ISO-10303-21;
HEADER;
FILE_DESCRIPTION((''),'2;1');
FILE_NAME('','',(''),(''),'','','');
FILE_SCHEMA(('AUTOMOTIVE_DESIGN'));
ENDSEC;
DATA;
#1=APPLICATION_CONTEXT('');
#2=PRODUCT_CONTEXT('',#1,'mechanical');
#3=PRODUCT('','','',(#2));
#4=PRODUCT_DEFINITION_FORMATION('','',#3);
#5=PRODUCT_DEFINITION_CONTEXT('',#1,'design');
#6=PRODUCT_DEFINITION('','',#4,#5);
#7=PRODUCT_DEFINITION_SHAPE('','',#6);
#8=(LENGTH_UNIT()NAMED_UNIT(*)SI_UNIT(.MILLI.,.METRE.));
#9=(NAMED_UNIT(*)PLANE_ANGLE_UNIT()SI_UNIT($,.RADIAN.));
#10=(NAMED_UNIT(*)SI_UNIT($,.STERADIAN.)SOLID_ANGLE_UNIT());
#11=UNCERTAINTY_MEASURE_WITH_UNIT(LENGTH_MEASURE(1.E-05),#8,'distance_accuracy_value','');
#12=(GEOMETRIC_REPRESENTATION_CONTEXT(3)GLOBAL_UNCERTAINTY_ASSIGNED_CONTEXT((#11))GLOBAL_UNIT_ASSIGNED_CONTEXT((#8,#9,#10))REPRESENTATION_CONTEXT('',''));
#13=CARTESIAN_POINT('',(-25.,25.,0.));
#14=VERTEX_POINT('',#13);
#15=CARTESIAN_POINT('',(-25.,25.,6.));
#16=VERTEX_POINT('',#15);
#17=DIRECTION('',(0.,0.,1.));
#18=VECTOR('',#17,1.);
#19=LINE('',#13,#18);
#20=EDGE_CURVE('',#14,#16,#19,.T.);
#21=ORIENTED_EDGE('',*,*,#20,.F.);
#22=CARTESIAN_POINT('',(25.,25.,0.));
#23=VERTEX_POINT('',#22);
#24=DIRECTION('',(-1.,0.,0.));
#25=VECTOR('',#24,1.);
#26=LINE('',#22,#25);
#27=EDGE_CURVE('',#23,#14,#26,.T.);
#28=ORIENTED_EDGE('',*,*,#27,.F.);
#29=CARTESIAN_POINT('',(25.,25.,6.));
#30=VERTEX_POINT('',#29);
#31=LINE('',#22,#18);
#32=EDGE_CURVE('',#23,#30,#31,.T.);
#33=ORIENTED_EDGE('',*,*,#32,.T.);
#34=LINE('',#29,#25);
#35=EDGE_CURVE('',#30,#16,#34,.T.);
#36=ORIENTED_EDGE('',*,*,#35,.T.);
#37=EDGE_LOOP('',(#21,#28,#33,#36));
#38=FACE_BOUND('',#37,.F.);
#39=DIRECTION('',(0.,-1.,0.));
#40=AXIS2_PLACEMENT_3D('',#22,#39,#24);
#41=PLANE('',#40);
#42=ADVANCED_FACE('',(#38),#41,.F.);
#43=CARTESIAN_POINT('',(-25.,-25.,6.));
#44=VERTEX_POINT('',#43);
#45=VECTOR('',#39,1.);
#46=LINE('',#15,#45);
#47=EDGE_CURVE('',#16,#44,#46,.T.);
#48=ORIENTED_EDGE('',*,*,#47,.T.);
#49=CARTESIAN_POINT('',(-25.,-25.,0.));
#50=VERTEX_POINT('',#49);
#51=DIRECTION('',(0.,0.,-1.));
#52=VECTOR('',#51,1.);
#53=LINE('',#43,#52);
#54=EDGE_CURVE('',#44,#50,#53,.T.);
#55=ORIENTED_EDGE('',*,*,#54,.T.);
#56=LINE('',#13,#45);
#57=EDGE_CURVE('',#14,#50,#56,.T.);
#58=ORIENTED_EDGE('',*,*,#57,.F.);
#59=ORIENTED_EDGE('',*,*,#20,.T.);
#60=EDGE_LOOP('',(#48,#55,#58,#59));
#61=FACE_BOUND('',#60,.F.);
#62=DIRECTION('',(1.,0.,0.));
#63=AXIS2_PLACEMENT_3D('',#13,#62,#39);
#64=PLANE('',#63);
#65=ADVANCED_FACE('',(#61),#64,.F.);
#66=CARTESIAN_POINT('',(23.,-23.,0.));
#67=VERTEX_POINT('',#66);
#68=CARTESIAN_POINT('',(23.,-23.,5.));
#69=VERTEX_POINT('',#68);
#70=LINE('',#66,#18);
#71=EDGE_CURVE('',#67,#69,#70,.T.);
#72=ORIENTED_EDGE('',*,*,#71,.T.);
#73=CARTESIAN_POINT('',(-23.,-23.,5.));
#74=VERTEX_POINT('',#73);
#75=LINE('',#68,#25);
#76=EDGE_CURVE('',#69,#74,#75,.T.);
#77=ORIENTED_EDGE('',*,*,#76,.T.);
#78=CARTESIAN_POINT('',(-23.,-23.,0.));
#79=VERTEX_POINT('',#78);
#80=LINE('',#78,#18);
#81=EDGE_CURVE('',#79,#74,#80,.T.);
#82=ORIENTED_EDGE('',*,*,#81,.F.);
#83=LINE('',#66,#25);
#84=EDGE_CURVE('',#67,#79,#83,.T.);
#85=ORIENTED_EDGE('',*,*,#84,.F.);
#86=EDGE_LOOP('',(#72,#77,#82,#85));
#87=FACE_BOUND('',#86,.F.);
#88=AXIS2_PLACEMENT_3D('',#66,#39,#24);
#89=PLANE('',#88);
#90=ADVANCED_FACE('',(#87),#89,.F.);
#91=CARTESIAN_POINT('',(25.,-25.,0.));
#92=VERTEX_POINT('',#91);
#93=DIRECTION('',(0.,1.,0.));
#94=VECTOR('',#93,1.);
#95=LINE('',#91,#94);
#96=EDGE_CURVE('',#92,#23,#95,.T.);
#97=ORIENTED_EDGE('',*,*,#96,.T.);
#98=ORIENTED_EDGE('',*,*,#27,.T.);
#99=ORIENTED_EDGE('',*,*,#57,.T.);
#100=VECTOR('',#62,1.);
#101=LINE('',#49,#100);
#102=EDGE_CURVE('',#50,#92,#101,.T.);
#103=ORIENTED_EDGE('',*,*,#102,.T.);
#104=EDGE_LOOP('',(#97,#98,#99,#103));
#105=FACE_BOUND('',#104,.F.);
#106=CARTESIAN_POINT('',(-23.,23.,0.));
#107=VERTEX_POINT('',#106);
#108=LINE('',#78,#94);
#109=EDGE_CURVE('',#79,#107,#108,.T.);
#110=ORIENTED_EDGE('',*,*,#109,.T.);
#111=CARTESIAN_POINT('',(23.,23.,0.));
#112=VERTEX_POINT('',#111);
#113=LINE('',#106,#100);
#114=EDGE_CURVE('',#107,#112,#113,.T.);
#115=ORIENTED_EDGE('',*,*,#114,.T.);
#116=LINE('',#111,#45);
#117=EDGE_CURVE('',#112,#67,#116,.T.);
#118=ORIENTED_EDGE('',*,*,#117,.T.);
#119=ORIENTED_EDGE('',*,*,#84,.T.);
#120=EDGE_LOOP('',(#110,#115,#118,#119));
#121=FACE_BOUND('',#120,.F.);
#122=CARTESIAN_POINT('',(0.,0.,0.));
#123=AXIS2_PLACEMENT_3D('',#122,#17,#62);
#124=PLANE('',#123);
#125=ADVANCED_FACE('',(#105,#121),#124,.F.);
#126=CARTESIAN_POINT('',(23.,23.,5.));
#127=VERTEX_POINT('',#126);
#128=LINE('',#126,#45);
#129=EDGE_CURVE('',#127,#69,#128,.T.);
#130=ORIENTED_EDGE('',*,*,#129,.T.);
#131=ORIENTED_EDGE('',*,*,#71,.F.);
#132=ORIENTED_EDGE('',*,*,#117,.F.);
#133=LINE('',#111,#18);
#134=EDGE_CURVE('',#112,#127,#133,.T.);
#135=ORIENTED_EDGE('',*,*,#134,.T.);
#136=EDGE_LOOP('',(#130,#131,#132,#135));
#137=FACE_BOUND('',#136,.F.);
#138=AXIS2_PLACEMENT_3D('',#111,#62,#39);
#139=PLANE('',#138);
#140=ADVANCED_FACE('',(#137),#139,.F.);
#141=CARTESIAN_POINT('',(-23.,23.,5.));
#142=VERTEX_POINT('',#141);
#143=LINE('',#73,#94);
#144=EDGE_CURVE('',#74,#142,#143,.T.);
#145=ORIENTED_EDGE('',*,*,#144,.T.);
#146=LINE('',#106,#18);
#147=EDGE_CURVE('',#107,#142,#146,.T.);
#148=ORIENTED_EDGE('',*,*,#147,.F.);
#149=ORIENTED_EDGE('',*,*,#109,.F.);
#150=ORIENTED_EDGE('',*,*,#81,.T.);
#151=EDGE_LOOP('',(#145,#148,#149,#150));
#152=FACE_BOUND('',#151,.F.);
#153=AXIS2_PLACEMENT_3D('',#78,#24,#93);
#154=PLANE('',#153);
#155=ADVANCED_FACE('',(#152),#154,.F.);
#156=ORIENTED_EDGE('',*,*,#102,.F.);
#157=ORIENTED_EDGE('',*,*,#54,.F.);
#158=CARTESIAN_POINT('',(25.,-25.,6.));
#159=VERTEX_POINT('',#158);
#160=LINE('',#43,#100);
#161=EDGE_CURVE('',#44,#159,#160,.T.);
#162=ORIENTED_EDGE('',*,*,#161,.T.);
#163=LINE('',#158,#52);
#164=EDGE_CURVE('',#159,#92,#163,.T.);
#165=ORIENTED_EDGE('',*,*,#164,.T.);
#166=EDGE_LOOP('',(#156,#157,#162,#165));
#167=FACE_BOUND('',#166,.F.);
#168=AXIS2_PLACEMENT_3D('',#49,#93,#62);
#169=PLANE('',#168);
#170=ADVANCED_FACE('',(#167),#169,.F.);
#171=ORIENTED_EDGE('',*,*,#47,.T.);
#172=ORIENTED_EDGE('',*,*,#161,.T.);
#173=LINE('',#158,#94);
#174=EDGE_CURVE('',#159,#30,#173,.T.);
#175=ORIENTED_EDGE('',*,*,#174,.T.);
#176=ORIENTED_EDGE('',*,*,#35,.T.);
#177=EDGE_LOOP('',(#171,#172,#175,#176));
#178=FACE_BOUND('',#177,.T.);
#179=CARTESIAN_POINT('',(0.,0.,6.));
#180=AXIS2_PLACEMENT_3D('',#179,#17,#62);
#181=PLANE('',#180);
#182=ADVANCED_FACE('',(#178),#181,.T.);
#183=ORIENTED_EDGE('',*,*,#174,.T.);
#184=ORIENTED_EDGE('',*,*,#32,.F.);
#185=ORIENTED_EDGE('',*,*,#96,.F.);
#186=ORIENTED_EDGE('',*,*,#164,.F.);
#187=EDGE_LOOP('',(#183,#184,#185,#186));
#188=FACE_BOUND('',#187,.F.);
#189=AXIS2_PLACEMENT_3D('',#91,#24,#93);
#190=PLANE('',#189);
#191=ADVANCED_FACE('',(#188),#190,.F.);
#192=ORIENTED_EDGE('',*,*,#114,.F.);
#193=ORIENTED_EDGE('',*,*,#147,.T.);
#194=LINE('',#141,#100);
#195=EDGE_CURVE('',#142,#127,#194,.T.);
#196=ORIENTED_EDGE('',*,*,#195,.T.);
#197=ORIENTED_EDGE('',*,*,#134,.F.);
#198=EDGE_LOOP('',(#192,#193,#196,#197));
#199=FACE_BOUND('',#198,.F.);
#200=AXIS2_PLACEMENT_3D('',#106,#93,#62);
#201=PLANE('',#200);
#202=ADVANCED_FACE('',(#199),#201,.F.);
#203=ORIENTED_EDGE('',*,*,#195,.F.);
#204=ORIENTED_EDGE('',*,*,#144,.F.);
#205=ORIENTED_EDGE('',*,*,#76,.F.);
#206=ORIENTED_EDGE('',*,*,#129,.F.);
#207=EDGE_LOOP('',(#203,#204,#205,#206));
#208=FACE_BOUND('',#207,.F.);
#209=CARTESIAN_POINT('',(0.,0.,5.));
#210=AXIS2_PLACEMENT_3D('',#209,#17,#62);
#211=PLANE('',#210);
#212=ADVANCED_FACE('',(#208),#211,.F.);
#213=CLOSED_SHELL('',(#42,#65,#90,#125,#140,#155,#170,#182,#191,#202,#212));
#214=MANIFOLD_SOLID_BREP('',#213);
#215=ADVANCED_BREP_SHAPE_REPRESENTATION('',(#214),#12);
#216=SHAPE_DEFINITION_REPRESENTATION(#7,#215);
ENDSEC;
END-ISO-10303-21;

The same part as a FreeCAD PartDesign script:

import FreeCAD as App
import Part
import Sketcher
Q = App.Units.Quantity

doc = App.newDocument("Part")
body = doc.addObject("PartDesign::Body", "Body")

sketch1 = body.newObject("Sketcher::SketchObject", "Sketch")
sketch1.AttachmentSupport = (doc.getObject("XY_Plane"), [""])
sketch1.MapMode = "FlatFace"
sketch1.addGeometry([
    Part.LineSegment(App.Vector(25, -25, 0), App.Vector(25, 25, 0)),
    Part.LineSegment(App.Vector(25, 25, 0), App.Vector(-25, 25, 0)),
    Part.LineSegment(App.Vector(-25, 25, 0), App.Vector(-25, -25, 0)),
    Part.LineSegment(App.Vector(-25, -25, 0), App.Vector(25, -25, 0)),
    Part.LineSegment(App.Vector(-23, -23, 0), App.Vector(-23, 23, 0)),
    Part.LineSegment(App.Vector(-23, 23, 0), App.Vector(23, 23, 0)),
    Part.LineSegment(App.Vector(23, 23, 0), App.Vector(23, -23, 0)),
    Part.LineSegment(App.Vector(23, -23, 0), App.Vector(-23, -23, 0)),
], False)
sketch1.addConstraint([
    Sketcher.Constraint("Coincident", 0, 2, 1, 1),
    Sketcher.Constraint("Coincident", 1, 2, 2, 1),
    Sketcher.Constraint("Coincident", 2, 2, 3, 1),
    Sketcher.Constraint("Coincident", 3, 2, 0, 1),
    Sketcher.Constraint("Coincident", 4, 2, 5, 1),
    Sketcher.Constraint("Coincident", 5, 2, 6, 1),
    Sketcher.Constraint("Coincident", 6, 2, 7, 1),
    Sketcher.Constraint("Coincident", 7, 2, 4, 1),
    Sketcher.Constraint("Vertical", 0),
    Sketcher.Constraint("Horizontal", 1),
    Sketcher.Constraint("Vertical", 2),
    Sketcher.Constraint("Horizontal", 3),
    Sketcher.Constraint("Vertical", 4),
    Sketcher.Constraint("Horizontal", 5),
    Sketcher.Constraint("Vertical", 6),
    Sketcher.Constraint("Horizontal", 7),
    Sketcher.Constraint("Symmetric", 0, 2, 2, 2, -1, 1),
    Sketcher.Constraint("Symmetric", 4, 2, 6, 2, -1, 1),
    Sketcher.Constraint("Equal", 3, 0),
    Sketcher.Constraint("Equal", 7, 4),
    Sketcher.Constraint("DistanceX", 1, 2, 4, 2, Q("2 mm")),
    Sketcher.Constraint("DistanceX", 1, 2, 1, 1, Q("50 mm")),
])
pad1 = body.newObject("PartDesign::Pad", "Pad")
pad1.Profile = sketch1
pad1.Length = 5

sketch2 = body.newObject("Sketcher::SketchObject", "Sketch001")
sketch2.AttachmentSupport = (doc.getObject("XY_Plane"), [""])
sketch2.MapMode = "FlatFace"
sketch2.AttachmentOffset = App.Placement(App.Vector(0, 0, 5), App.Rotation())
sketch2.addGeometry([
    Part.LineSegment(App.Vector(25, -25, 0), App.Vector(25, 25, 0)),
    Part.LineSegment(App.Vector(25, 25, 0), App.Vector(-25, 25, 0)),
    Part.LineSegment(App.Vector(-25, 25, 0), App.Vector(-25, -25, 0)),
    Part.LineSegment(App.Vector(-25, -25, 0), App.Vector(25, -25, 0)),
], False)
sketch2.addConstraint([
    Sketcher.Constraint("Coincident", 0, 2, 1, 1),
    Sketcher.Constraint("Coincident", 1, 2, 2, 1),
    Sketcher.Constraint("Coincident", 2, 2, 3, 1),
    Sketcher.Constraint("Coincident", 3, 2, 0, 1),
    Sketcher.Constraint("Vertical", 0),
    Sketcher.Constraint("Horizontal", 1),
    Sketcher.Constraint("Vertical", 2),
    Sketcher.Constraint("Horizontal", 3),
    Sketcher.Constraint("Symmetric", 0, 2, 2, 2, -1, 1),
    Sketcher.Constraint("Equal", 3, 0),
    Sketcher.Constraint("DistanceX", 1, 2, 1, 1, Q("50 mm")),
])
pad2 = body.newObject("PartDesign::Pad", "Pad001")
pad2.Profile = sketch2
pad2.Length = 1

doc.recompute()
